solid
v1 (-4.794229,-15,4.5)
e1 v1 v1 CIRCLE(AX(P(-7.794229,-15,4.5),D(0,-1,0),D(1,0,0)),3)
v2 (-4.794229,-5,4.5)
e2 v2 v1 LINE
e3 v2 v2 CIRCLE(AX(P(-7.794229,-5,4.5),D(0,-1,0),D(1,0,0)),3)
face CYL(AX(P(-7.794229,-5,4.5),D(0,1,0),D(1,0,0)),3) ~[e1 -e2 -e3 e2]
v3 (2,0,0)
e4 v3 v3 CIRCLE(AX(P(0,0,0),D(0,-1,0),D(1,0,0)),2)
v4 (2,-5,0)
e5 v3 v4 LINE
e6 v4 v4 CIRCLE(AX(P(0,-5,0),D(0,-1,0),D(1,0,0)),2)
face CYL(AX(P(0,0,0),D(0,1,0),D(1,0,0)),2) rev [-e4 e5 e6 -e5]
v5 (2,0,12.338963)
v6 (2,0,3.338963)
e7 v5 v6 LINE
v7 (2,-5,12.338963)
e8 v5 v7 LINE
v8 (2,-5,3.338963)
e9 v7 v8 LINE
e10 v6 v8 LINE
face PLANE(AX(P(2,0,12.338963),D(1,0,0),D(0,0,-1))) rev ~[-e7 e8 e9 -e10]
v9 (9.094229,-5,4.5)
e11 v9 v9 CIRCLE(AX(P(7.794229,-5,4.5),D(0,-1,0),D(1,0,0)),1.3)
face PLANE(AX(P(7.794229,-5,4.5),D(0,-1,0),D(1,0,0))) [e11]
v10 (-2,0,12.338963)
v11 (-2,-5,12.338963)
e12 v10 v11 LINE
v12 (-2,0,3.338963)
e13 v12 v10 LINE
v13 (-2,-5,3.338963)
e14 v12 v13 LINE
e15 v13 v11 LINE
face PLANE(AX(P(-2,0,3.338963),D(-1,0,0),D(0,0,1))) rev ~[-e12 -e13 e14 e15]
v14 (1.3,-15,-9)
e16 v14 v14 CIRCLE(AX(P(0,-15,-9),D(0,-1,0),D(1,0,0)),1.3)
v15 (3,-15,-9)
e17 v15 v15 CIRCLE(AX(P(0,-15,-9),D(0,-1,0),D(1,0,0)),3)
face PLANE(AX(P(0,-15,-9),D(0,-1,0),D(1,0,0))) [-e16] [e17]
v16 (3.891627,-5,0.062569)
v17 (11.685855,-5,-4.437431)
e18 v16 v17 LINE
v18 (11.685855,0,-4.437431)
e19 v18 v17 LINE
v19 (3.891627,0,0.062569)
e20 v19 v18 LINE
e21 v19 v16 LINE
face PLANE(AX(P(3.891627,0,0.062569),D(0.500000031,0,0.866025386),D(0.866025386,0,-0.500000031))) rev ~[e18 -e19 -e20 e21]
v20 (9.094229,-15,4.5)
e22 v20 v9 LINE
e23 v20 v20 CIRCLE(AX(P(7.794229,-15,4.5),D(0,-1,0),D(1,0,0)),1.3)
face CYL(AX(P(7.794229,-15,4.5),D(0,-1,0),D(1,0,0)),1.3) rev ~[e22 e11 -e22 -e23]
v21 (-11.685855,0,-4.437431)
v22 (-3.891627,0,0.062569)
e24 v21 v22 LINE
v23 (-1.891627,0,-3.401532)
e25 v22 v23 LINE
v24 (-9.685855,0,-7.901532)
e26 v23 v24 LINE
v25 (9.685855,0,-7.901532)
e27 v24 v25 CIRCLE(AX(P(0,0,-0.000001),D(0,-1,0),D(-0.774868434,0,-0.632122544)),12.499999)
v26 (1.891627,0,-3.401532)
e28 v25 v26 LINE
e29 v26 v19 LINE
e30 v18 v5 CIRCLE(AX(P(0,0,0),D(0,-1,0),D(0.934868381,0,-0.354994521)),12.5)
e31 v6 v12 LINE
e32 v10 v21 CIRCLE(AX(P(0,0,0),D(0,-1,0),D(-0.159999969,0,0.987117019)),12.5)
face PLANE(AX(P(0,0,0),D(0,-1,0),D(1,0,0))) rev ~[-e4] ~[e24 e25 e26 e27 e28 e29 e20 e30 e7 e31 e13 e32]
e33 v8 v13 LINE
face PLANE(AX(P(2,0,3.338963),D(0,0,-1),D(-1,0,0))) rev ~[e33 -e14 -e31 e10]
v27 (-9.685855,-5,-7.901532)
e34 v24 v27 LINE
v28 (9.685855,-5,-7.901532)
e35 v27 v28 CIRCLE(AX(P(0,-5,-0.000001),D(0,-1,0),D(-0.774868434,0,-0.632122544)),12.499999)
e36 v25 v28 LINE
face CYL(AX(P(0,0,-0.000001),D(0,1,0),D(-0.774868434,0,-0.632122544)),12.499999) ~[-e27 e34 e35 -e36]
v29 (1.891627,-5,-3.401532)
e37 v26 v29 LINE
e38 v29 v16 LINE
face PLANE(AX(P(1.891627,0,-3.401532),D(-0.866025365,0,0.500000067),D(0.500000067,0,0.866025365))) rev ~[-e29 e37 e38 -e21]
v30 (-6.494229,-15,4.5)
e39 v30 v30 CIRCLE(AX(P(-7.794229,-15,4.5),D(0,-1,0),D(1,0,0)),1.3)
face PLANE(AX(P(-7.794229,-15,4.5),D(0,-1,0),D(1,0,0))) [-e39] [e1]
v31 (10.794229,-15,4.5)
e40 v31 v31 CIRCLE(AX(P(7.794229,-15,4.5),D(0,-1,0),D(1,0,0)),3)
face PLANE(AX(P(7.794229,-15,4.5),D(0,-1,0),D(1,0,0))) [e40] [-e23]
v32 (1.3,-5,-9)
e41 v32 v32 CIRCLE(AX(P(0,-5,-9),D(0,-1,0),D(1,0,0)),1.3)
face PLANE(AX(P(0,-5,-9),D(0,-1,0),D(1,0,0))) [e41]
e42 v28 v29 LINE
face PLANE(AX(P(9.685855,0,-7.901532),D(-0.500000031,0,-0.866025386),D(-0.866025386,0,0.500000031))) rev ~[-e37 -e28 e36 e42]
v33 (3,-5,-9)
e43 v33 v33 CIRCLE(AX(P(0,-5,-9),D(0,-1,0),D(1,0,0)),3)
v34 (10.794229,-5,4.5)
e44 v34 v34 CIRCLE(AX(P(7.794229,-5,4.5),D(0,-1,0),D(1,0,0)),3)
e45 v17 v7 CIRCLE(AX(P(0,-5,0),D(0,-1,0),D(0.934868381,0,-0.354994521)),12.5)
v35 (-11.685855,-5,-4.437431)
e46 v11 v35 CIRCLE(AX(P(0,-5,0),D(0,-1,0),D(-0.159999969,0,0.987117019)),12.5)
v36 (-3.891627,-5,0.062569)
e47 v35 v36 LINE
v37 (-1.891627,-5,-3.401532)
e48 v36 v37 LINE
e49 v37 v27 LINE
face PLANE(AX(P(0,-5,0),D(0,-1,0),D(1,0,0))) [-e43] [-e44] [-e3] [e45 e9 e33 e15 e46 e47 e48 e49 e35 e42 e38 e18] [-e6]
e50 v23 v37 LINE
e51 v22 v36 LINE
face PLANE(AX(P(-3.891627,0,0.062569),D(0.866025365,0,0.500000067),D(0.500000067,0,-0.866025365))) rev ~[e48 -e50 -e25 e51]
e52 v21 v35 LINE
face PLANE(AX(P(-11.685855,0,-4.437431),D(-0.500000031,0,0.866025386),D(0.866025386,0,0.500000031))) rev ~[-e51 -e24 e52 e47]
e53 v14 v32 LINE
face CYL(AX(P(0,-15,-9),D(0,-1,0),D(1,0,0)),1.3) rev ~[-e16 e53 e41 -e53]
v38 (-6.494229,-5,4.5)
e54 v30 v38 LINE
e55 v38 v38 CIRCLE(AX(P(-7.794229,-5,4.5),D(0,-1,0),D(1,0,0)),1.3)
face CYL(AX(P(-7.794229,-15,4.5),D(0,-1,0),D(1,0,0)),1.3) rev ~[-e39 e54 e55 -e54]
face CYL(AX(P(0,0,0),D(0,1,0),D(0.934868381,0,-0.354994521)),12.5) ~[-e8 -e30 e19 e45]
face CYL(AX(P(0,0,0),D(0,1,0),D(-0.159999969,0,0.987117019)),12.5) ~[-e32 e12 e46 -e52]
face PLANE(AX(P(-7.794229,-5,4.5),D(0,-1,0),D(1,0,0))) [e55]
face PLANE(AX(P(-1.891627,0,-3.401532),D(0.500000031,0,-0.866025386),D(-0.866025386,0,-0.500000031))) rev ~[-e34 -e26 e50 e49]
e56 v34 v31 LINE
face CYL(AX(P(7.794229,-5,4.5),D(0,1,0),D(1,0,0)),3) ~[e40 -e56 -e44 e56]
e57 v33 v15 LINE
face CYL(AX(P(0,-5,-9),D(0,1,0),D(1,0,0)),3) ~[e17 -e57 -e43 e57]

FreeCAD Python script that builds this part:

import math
import FreeCAD as App
import Part
import Sketcher
from FreeCAD import Vector
Q = App.Units.Quantity

doc = App.newDocument("Part")
body = doc.addObject("PartDesign::Body", "Body")

sketch1 = body.newObject("Sketcher::SketchObject", "Sketch")
sketch1.AttachmentSupport = (doc.getObject("XZ_Plane"), [""])
sketch1.MapMode = "FlatFace"
sketch1.addGeometry([
    Part.LineSegment(Vector(-2, 3.3, 0), Vector(-2, 12.3, 0)),
    Part.ArcOfCircle(Part.Circle(Vector(0, 0, 0), Vector(0, 0, 1), 12.5), math.radians(99), math.radians(201)),
    Part.LineSegment(Vector(-11.7, -4.4, 0), Vector(-3.9, 0.1, 0)),
    Part.LineSegment(Vector(-3.9, 0.1, 0), Vector(-1.9, -3.4, 0)),
    Part.LineSegment(Vector(-1.9, -3.4, 0), Vector(-9.7, -7.9, 0)),
    Part.ArcOfCircle(Part.Circle(Vector(0, 0, 0), Vector(0, 0, 1), 12.5), math.radians(-141), math.radians(-39)),
    Part.LineSegment(Vector(9.7, -7.9, 0), Vector(1.9, -3.4, 0)),
    Part.LineSegment(Vector(1.9, -3.4, 0), Vector(3.9, 0.1, 0)),
    Part.LineSegment(Vector(3.9, 0.1, 0), Vector(11.7, -4.4, 0)),
    Part.ArcOfCircle(Part.Circle(Vector(0, 0, 0), Vector(0, 0, 1), 12.5), math.radians(-21), math.radians(81)),
    Part.LineSegment(Vector(2, 12.3, 0), Vector(2, 3.3, 0)),
    Part.LineSegment(Vector(2, 3.3, 0), Vector(-2, 3.3, 0)),
    Part.Circle(Vector(0, 0, 0), Vector(0, 0, 1), 2),
], False)
sketch1.addConstraint([
    Sketcher.Constraint("Coincident", 0, 2, 1, 1),
    Sketcher.Constraint("Coincident", 1, 2, 2, 1),
    Sketcher.Constraint("Coincident", 2, 2, 3, 1),
    Sketcher.Constraint("Coincident", 3, 2, 4, 1),
    Sketcher.Constraint("Coincident", 4, 2, 5, 1),
    Sketcher.Constraint("Coincident", 5, 2, 6, 1),
    Sketcher.Constraint("Coincident", 6, 2, 7, 1),
    Sketcher.Constraint("Coincident", 7, 2, 8, 1),
    Sketcher.Constraint("Coincident", 8, 2, 9, 1),
    Sketcher.Constraint("Coincident", 9, 2, 10, 1),
    Sketcher.Constraint("Coincident", 10, 2, 11, 1),
    Sketcher.Constraint("Coincident", 11, 2, 0, 1),
    Sketcher.Constraint("Vertical", 0),
    Sketcher.Constraint("Vertical", 10),
    Sketcher.Constraint("Horizontal", 11),
    Sketcher.Constraint("Coincident", 1, 3, -1, 1),
    Sketcher.Constraint("Coincident", 5, 3, -1, 1),
    Sketcher.Constraint("Coincident", 9, 3, -1, 1),
    Sketcher.Constraint("Coincident", 12, 3, -1, 1),
    Sketcher.Constraint("Equal", 1, 5),
    Sketcher.Constraint("Equal", 5, 9),
    Sketcher.Constraint("Symmetric", 3, 2, 6, 2, -2),
    Sketcher.Constraint("Symmetric", 2, 2, 7, 2, -2),
    Sketcher.Constraint("Perpendicular", 2, 3),
    Sketcher.Constraint("Perpendicular", 3, 4),
    Sketcher.Constraint("Perpendicular", 6, 7),
    Sketcher.Constraint("Perpendicular", 7, 8),
    Sketcher.Constraint("Horizontal", 0, 2, 9, 2),
    Sketcher.Constraint("Equal", 2, 4),
    Sketcher.Constraint("Diameter", 12, Q("4 mm")),
    Sketcher.Constraint("Radius", 1, Q("12.5 mm")),
    Sketcher.Constraint("DistanceX", 11, 2, 11, 1, Q("4 mm")),
    Sketcher.Constraint("DistanceY", 0, 1, 0, 2, Q("9 mm")),
    Sketcher.Constraint("Angle", 2, Q("30.000002 deg")),
    Sketcher.Constraint("Distance", 2, Q("8.999999 mm")),
    Sketcher.Constraint("Distance", 3, Q("3.999999 mm")),
])
pad1 = body.newObject("PartDesign::Pad", "Pad")
pad1.Profile = sketch1
pad1.Length = 5

sketch2 = body.newObject("Sketcher::SketchObject", "Sketch001")
sketch2.AttachmentSupport = (doc.getObject("XZ_Plane"), [""])
sketch2.MapMode = "FlatFace"
sketch2.AttachmentOffset = App.Placement(Vector(0, 0, 5), App.Rotation())
sketch2.addGeometry([
    Part.Circle(Vector(7.8, 4.5, 0), Vector(0, 0, 1), 3),
    Part.Circle(Vector(-7.8, 4.5, 0), Vector(0, 0, 1), 3),
    Part.Circle(Vector(0, -9, 0), Vector(0, 0, 1), 3),
], False)
sketch2.addConstraint([
    Sketcher.Constraint("Equal", 0, 1),
    Sketcher.Constraint("Equal", 1, 2),
    Sketcher.Constraint("Symmetric", 0, 3, 1, 3, -2),
    Sketcher.Constraint("PointOnObject", 2, 3, -2),
    Sketcher.Constraint("Diameter", 0, Q("6 mm")),
    Sketcher.Constraint("DistanceY", 2, 3, -1, 1, Q("9 mm")),
    Sketcher.Constraint("DistanceY", -1, 1, 0, 3, Q("4.5 mm")),
    Sketcher.Constraint("DistanceX", -1, 1, 0, 3, Q("7.794229 mm")),
])
pad2 = body.newObject("PartDesign::Pad", "Pad001")
pad2.Profile = sketch2
pad2.Length = 10

sketch3 = body.newObject("Sketcher::SketchObject", "Sketch002")
sketch3.AttachmentSupport = (doc.getObject("XZ_Plane"), [""])
sketch3.MapMode = "FlatFace"
sketch3.AttachmentOffset = App.Placement(Vector(0, 0, 15), App.Rotation())
sketch3.addGeometry([
    Part.Circle(Vector(0, -9, 0), Vector(0, 0, 1), 1.3),
    Part.Circle(Vector(7.8, 4.5, 0), Vector(0, 0, 1), 1.3),
    Part.Circle(Vector(-7.8, 4.5, 0), Vector(0, 0, 1), 1.3),
], False)
sketch3.addConstraint([
    Sketcher.Constraint("Equal", 0, 1),
    Sketcher.Constraint("Equal", 1, 2),
    Sketcher.Constraint("Symmetric", 1, 3, 2, 3, -2),
    Sketcher.Constraint("PointOnObject", 0, 3, -2),
    Sketcher.Constraint("Diameter", 0, Q("2.6 mm")),
    Sketcher.Constraint("DistanceY", 0, 3, -1, 1, Q("9 mm")),
    Sketcher.Constraint("DistanceY", -1, 1, 1, 3, Q("4.5 mm")),
    Sketcher.Constraint("DistanceX", -1, 1, 1, 3, Q("7.794229 mm")),
])
pocket1 = body.newObject("PartDesign::Pocket", "Pocket")
pocket1.Profile = sketch3
pocket1.Length = 10

doc.recompute()
